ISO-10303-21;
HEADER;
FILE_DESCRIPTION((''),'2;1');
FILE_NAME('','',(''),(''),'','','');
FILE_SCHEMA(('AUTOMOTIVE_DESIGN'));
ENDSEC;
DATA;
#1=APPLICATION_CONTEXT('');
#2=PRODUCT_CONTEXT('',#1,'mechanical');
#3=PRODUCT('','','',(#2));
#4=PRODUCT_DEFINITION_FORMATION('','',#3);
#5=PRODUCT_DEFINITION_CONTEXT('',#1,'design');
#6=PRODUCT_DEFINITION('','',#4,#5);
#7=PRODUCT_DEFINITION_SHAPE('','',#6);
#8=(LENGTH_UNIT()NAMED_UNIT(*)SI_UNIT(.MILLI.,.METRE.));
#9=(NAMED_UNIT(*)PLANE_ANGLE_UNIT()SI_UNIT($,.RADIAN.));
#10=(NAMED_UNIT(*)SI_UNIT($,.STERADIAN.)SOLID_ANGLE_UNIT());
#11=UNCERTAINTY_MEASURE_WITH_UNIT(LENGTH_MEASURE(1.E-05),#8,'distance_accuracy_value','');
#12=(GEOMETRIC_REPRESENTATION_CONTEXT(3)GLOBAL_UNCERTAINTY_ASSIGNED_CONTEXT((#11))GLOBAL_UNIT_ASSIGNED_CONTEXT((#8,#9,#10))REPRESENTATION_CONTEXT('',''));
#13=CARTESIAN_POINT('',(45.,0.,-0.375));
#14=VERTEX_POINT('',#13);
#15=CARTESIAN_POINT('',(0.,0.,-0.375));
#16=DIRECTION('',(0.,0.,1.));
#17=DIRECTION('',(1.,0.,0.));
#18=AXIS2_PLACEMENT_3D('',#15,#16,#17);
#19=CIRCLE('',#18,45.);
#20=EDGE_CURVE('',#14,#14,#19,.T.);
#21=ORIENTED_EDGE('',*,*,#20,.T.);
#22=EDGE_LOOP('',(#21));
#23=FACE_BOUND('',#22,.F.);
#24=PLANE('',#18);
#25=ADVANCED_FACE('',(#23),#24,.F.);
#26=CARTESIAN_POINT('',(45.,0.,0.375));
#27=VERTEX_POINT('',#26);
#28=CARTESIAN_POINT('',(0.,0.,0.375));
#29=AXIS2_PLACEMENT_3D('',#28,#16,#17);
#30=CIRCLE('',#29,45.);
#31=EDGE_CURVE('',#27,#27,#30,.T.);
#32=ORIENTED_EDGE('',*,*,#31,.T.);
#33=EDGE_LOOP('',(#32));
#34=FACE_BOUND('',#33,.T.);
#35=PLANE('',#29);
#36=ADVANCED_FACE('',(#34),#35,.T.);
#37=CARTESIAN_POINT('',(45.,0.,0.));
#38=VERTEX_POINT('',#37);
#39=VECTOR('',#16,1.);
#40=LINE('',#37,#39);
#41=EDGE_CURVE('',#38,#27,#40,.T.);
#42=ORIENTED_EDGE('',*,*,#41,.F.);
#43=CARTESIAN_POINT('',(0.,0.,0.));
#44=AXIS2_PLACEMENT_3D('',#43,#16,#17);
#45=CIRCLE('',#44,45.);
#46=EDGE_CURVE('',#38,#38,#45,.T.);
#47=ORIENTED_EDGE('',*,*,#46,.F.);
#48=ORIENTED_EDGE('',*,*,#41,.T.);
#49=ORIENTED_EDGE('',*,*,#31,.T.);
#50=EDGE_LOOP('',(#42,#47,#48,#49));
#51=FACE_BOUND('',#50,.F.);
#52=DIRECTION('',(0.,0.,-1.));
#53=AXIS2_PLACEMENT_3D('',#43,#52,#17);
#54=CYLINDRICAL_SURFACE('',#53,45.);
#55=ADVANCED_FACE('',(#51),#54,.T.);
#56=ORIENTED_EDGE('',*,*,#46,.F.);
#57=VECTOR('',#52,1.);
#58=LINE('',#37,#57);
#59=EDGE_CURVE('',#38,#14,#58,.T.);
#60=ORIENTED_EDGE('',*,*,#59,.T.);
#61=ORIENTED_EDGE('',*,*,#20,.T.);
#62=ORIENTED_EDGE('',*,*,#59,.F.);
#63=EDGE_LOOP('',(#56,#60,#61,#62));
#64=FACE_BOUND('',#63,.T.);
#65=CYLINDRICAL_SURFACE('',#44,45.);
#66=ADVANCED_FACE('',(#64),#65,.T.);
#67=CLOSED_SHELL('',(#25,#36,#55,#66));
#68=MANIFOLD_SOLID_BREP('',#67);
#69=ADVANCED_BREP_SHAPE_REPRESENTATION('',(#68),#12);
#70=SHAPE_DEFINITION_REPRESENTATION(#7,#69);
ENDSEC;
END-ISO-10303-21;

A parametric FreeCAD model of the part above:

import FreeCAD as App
import Part
import Sketcher
from FreeCAD import Vector
Q = App.Units.Quantity

doc = App.newDocument("Part")
body = doc.addObject("PartDesign::Body", "Body")

# Sketch on XY plane
sketch1 = body.newObject("Sketcher::SketchObject", "Sketch")
sketch1.AttachmentSupport = (doc.getObject("XY_Plane"), [""])
sketch1.MapMode = "FlatFace"
sketch1.addGeometry(Part.Circle(Vector(0, 0, 0), Vector(0, 0, 1), 45), False)
sketch1.addConstraint([
    Sketcher.Constraint("Coincident", 0, 3, -1, 1),
    Sketcher.Constraint("Diameter", 0, Q("90 mm")),
])
pad1 = body.newObject("PartDesign::Pad", "Pad")
pad1.Profile = sketch1
pad1.Length = 0.75
pad1.Midplane = True

doc.recompute()
